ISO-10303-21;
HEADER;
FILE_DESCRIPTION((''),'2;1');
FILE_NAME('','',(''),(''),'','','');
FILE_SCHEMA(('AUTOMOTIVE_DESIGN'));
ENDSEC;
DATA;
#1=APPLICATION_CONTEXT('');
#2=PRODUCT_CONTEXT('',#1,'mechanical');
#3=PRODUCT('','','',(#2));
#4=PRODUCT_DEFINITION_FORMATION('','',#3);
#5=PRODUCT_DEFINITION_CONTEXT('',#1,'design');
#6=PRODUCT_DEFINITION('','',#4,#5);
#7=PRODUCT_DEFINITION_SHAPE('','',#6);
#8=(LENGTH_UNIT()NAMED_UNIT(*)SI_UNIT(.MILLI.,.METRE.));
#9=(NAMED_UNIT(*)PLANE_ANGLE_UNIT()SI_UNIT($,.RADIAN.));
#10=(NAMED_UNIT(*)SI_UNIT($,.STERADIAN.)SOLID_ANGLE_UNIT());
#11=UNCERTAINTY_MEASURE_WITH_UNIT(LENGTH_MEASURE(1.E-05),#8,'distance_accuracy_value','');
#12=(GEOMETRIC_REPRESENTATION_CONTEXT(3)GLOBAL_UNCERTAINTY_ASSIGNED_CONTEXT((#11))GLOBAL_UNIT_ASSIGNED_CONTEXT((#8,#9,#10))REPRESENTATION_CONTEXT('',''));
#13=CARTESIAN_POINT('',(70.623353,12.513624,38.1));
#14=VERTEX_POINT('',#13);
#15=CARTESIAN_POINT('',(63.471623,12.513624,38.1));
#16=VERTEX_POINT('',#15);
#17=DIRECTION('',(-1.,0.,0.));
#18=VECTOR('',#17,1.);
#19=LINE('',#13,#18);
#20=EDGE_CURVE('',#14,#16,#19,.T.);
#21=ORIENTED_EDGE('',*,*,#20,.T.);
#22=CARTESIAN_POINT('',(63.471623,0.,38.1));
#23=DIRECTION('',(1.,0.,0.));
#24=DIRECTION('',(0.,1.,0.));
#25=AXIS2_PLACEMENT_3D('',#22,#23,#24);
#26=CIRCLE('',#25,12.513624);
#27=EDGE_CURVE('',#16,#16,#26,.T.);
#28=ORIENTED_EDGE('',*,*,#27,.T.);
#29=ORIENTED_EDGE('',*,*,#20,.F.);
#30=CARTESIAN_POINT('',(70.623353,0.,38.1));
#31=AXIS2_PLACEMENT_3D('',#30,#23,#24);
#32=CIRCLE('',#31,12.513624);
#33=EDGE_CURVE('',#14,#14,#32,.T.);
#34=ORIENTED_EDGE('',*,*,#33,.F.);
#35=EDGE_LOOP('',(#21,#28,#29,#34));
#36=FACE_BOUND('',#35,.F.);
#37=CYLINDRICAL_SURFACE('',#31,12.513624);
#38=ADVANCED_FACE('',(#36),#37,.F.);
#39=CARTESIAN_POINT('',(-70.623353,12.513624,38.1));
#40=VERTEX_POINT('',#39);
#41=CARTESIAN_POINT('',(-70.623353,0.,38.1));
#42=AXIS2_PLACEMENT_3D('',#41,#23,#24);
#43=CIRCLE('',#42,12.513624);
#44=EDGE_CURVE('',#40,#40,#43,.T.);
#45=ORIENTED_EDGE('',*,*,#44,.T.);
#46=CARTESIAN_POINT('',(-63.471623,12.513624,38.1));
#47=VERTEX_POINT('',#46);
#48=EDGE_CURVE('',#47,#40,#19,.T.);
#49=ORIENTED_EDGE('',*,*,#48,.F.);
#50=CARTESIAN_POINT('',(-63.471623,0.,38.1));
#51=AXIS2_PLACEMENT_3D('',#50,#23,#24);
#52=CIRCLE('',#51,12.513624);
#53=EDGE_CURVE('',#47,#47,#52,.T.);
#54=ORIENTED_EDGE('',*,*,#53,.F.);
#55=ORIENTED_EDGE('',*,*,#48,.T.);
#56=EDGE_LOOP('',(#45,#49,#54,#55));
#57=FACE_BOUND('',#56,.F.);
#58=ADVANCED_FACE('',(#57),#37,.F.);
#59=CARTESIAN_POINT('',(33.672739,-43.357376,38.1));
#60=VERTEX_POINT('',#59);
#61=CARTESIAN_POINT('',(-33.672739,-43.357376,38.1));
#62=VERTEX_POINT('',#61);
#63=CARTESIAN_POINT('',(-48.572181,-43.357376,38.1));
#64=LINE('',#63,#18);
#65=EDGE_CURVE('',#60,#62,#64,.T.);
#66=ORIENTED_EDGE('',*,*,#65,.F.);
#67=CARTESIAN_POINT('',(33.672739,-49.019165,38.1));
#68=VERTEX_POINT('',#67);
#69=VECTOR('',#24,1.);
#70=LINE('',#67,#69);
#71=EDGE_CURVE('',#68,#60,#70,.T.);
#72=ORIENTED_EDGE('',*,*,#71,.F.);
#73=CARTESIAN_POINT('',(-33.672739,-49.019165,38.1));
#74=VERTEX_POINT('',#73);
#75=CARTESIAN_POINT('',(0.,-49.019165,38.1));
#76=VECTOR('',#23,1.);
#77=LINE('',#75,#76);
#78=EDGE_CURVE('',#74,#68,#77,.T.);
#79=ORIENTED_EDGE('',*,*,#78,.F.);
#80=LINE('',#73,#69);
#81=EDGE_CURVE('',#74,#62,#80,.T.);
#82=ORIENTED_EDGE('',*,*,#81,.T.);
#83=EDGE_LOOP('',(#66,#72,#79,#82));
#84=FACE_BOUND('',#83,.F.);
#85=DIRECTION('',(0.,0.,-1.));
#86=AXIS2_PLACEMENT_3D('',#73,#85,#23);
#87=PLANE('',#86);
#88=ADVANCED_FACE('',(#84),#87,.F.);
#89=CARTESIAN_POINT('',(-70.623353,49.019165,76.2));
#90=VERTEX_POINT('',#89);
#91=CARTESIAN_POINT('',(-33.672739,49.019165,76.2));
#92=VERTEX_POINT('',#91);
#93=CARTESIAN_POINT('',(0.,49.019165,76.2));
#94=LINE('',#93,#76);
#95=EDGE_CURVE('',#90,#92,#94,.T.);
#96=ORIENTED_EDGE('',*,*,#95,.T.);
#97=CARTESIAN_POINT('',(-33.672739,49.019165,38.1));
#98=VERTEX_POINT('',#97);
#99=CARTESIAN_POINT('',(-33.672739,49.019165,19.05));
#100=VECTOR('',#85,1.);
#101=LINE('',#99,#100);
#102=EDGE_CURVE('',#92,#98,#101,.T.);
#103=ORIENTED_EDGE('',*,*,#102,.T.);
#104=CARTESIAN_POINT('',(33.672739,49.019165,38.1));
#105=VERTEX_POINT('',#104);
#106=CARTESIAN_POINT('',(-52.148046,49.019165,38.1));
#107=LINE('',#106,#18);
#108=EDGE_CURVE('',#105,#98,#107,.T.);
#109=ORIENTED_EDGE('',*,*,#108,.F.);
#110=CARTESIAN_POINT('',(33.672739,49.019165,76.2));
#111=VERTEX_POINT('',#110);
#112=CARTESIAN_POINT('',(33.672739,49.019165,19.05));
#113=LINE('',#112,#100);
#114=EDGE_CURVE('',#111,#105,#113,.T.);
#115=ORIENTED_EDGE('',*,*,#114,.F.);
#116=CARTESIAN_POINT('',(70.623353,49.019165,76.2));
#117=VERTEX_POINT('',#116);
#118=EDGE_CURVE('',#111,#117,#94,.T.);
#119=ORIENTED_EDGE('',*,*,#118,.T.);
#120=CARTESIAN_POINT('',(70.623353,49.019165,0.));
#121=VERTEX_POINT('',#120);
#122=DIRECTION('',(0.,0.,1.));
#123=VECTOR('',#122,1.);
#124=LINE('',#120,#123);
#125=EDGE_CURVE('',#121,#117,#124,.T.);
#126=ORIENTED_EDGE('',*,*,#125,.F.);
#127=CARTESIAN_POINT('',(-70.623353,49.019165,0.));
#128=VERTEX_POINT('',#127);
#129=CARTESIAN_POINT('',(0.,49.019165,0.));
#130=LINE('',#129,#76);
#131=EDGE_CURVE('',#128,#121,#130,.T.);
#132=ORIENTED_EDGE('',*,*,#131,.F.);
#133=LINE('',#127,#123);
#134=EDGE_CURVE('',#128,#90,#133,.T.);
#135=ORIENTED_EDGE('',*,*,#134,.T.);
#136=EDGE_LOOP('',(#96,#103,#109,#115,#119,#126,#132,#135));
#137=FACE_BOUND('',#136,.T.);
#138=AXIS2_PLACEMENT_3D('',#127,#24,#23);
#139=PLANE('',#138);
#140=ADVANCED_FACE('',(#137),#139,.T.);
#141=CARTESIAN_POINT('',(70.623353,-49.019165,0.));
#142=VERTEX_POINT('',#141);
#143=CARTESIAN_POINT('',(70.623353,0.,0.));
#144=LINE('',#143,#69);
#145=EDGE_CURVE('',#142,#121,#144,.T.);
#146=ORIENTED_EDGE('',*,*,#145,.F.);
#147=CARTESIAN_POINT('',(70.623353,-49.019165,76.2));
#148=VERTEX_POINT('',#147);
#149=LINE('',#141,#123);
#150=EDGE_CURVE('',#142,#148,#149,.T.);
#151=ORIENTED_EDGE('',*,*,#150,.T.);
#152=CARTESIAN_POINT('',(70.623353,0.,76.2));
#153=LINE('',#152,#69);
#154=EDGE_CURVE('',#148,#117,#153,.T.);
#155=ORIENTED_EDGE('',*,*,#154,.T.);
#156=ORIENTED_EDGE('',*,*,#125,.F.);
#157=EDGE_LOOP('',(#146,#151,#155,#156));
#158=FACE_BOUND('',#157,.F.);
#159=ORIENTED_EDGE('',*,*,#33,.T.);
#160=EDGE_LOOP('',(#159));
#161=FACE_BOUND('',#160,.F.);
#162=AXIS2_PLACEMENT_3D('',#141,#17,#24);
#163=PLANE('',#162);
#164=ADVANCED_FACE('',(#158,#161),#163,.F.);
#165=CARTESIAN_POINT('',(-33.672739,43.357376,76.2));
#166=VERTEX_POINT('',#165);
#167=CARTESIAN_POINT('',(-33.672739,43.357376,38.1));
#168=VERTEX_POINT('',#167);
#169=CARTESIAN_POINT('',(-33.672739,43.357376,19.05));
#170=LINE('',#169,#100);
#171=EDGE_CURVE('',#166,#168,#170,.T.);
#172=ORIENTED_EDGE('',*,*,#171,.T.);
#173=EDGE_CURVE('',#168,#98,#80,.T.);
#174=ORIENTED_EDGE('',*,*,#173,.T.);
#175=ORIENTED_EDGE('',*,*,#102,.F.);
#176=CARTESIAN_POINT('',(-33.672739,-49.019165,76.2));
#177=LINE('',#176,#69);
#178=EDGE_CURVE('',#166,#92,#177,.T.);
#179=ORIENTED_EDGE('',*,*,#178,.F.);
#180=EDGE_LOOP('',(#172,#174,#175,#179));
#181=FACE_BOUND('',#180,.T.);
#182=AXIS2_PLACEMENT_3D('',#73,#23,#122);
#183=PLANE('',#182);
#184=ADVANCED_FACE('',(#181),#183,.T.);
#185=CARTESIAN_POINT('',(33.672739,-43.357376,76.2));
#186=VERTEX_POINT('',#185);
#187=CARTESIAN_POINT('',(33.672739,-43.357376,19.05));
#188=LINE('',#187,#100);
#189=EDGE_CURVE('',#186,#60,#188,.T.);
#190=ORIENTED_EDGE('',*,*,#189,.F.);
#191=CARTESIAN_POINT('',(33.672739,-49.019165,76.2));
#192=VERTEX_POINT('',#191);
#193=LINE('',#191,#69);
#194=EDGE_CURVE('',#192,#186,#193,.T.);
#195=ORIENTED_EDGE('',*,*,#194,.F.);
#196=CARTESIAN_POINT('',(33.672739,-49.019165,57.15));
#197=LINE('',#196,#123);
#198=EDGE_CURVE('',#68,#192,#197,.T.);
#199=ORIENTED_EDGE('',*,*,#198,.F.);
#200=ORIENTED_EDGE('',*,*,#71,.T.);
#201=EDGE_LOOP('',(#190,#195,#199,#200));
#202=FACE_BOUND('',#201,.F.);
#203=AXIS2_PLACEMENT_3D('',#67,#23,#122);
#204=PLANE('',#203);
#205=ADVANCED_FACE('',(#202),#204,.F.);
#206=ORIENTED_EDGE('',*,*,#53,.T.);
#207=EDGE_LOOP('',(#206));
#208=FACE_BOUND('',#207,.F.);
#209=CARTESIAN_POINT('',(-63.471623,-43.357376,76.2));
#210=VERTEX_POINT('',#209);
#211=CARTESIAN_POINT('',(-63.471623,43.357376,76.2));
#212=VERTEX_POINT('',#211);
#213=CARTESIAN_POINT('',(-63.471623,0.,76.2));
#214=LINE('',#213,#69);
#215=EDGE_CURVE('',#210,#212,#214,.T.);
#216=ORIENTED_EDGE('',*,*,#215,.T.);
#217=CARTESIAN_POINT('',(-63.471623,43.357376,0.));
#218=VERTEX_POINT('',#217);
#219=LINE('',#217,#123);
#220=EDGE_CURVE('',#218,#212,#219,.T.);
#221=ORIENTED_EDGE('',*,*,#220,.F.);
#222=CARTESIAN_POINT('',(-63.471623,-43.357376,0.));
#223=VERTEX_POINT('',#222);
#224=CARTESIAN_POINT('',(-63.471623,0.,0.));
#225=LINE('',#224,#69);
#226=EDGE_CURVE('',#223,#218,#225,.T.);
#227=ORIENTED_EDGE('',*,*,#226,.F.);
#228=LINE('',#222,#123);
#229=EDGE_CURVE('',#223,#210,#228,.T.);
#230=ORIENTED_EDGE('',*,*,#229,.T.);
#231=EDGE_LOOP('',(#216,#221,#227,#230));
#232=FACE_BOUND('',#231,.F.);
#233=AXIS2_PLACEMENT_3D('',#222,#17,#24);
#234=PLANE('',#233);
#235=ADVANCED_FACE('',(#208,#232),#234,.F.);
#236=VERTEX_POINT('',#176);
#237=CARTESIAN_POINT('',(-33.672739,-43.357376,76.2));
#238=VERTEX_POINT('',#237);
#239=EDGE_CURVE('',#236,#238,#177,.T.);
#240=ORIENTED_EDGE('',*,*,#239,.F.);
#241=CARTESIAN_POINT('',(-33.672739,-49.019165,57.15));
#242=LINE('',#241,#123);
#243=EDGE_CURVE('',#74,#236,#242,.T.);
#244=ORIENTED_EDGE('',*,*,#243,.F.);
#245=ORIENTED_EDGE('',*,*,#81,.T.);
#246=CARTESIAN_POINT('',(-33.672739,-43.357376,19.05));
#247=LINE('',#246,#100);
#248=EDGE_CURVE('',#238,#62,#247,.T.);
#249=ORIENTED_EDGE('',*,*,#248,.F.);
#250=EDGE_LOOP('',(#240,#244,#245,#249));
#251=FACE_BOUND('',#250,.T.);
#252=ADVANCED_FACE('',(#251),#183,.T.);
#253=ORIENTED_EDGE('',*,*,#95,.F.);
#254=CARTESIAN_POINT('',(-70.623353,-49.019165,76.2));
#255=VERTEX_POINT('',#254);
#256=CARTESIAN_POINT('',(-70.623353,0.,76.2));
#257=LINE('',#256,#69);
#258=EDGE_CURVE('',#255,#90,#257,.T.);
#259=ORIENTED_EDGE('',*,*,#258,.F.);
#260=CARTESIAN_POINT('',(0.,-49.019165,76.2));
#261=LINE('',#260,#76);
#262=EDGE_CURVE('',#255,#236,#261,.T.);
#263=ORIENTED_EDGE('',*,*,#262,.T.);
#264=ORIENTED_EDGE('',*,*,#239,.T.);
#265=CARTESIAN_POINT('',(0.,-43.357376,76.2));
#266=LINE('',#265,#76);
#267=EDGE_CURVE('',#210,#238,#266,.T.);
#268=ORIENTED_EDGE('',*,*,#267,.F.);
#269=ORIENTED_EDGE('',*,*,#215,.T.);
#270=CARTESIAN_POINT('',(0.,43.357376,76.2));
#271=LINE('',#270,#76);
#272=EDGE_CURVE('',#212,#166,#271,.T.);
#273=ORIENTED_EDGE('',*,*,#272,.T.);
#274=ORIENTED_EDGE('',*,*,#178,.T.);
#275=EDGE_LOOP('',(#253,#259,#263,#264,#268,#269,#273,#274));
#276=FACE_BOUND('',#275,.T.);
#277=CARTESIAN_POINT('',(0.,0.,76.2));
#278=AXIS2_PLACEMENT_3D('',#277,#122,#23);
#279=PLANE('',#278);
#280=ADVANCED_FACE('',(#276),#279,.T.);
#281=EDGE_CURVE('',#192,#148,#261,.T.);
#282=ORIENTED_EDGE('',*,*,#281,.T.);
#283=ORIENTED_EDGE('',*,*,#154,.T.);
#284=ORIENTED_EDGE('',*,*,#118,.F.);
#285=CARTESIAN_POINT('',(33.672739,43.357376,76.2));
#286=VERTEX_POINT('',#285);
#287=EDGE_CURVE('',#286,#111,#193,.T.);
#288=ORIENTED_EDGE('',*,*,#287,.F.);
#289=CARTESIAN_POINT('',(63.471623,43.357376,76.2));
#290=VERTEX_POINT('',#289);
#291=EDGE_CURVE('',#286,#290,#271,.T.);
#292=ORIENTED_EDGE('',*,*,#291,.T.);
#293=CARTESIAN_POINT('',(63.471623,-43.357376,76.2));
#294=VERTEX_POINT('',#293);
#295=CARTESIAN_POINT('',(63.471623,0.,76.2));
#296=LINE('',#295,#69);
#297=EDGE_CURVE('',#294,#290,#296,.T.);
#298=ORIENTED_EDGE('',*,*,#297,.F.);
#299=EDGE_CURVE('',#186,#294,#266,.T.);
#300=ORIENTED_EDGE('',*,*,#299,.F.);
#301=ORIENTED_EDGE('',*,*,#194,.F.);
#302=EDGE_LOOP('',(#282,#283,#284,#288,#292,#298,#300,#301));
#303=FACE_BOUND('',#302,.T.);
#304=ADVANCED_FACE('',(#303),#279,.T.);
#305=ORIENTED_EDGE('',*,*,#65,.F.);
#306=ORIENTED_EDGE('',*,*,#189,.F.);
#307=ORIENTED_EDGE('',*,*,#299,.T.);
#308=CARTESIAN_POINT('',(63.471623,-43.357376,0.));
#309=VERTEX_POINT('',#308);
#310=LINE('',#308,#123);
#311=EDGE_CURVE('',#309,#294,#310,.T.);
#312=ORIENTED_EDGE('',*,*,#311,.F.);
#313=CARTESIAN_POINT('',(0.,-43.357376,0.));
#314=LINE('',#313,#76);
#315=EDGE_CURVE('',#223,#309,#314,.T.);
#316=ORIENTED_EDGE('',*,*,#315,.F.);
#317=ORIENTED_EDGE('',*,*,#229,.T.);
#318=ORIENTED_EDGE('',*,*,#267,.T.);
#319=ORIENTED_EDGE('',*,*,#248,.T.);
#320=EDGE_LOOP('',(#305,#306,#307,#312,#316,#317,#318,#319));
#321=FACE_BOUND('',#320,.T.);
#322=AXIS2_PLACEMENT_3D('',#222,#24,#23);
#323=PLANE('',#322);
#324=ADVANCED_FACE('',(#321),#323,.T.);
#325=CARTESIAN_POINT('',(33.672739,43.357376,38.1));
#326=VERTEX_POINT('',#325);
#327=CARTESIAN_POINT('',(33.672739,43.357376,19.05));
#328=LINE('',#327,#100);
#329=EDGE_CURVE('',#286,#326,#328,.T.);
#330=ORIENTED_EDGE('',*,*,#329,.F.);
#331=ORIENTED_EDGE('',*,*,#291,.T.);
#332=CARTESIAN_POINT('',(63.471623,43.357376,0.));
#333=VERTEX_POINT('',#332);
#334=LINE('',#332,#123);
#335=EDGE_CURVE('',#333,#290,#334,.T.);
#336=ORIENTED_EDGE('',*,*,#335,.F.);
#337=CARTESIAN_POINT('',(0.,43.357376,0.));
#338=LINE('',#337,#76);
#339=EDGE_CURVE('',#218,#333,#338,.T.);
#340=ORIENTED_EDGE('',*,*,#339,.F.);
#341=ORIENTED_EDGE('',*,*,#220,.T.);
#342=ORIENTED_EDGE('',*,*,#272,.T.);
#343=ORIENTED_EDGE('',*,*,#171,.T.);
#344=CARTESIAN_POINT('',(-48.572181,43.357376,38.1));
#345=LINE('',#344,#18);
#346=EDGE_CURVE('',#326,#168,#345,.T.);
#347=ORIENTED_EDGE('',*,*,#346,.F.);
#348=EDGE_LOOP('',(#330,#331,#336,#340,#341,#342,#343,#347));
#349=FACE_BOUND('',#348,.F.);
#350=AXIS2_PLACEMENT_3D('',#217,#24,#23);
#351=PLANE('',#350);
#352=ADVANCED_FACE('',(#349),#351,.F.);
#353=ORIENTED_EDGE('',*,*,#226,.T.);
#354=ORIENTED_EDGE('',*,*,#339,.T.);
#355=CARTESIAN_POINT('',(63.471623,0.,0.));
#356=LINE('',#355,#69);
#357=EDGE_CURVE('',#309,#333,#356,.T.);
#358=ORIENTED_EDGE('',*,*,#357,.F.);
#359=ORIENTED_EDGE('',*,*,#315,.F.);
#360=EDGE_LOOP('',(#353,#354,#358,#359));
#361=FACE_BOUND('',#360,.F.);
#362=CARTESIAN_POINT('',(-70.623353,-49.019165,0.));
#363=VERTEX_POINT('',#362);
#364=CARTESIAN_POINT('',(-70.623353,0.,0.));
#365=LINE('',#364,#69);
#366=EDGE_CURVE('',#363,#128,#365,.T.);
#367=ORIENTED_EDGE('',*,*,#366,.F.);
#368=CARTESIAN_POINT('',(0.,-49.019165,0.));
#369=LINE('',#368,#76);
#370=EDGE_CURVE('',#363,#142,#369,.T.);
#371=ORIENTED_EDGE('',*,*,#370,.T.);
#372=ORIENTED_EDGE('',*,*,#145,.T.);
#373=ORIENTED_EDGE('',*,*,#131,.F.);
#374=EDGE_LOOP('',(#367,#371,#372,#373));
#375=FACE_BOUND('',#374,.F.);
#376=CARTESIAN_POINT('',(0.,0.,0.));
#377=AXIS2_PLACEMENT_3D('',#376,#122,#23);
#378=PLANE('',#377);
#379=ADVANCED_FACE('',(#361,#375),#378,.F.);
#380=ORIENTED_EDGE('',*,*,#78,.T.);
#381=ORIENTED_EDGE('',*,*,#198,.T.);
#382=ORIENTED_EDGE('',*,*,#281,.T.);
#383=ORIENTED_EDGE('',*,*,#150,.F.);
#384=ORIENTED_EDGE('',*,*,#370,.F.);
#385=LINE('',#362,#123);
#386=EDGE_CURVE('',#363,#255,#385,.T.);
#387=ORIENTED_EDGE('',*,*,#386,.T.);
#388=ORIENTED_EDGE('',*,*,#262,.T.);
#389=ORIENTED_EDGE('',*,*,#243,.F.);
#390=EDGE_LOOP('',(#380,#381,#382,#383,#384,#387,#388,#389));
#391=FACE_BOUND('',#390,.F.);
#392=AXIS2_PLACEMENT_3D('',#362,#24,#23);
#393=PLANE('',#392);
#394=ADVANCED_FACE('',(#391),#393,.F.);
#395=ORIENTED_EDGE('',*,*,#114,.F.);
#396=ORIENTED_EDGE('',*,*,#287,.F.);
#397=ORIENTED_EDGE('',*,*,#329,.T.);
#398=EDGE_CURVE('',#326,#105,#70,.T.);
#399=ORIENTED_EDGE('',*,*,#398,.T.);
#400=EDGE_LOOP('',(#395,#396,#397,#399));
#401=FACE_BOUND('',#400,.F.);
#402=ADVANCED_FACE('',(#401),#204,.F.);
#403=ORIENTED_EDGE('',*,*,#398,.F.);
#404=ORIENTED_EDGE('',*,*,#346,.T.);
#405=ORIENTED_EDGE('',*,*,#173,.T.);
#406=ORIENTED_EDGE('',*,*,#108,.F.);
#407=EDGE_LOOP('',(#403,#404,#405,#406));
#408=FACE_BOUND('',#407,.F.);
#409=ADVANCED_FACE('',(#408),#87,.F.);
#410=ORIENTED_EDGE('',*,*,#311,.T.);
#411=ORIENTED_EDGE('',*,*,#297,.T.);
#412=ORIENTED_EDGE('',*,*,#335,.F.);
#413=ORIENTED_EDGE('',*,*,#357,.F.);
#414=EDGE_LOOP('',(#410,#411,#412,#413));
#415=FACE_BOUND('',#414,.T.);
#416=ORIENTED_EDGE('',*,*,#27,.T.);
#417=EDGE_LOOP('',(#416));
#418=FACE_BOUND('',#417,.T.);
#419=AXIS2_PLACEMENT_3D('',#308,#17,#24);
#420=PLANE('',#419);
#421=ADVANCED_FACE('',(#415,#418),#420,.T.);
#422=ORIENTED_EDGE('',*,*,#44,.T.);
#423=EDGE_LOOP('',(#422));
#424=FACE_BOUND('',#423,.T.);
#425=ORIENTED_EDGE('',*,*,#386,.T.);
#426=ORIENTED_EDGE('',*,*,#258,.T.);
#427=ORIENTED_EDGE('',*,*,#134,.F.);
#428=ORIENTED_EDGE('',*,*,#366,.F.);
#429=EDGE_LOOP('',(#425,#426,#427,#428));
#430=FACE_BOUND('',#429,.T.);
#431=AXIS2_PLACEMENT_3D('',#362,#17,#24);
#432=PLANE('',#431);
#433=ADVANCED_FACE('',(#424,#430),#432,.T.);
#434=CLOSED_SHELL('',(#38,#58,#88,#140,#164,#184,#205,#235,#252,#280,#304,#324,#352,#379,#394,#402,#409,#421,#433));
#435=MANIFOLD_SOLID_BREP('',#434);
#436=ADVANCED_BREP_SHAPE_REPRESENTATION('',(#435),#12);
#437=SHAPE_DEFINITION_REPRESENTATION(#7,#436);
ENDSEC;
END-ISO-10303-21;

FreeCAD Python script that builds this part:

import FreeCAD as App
import Part
import Sketcher

V = App.Vector
Q = App.Units.Quantity

doc = App.newDocument("Part")
body = doc.addObject("PartDesign::Body", "Body")

# Sketch on XY plane
sketch1 = doc.addObject("Sketcher::SketchObject", "Sketch")
body.addObject(sketch1)
sketch1.AttachmentSupport = (doc.XY_Plane, [""])
sketch1.MapMode = "FlatFace"
sketch1.addGeometry(Part.LineSegment(V(-70.623353, 49.019165, 0), V(-70.623353, -49.019165, 0)), False)
sketch1.addGeometry(Part.LineSegment(V(-70.623353, -49.019165, 0), V(70.623353, -49.019165, 0)), False)
sketch1.addGeometry(Part.LineSegment(V(70.623353, -49.019165, 0), V(70.623353, 49.019165, 0)), False)
sketch1.addGeometry(Part.LineSegment(V(70.623353, 49.019165, 0), V(-70.623353, 49.019165, 0)), False)
sketch1.addGeometry(Part.LineSegment(V(63.471623, -43.357376, 0), V(-63.471623, -43.357376, 0)), False)
sketch1.addGeometry(Part.LineSegment(V(-63.471623, -43.357376, 0), V(-63.471623, 43.357376, 0)), False)
sketch1.addGeometry(Part.LineSegment(V(-63.471623, 43.357376, 0), V(63.471623, 43.357376, 0)), False)
sketch1.addGeometry(Part.LineSegment(V(63.471623, 43.357376, 0), V(63.471623, -43.357376, 0)), False)
sketch1.addConstraint(Sketcher.Constraint("Coincident", 0, 2, 1, 1))
sketch1.addConstraint(Sketcher.Constraint("Coincident", 1, 2, 2, 1))
sketch1.addConstraint(Sketcher.Constraint("Coincident", 2, 2, 3, 1))
sketch1.addConstraint(Sketcher.Constraint("Coincident", 3, 2, 0, 1))
sketch1.addConstraint(Sketcher.Constraint("Coincident", 4, 2, 5, 1))
sketch1.addConstraint(Sketcher.Constraint("Coincident", 5, 2, 6, 1))
sketch1.addConstraint(Sketcher.Constraint("Coincident", 6, 2, 7, 1))
sketch1.addConstraint(Sketcher.Constraint("Coincident", 7, 2, 4, 1))
sketch1.addConstraint(Sketcher.Constraint("Vertical", 0))
sketch1.addConstraint(Sketcher.Constraint("Horizontal", 1))
sketch1.addConstraint(Sketcher.Constraint("Vertical", 2))
sketch1.addConstraint(Sketcher.Constraint("Horizontal", 3))
sketch1.addConstraint(Sketcher.Constraint("Horizontal", 4))
sketch1.addConstraint(Sketcher.Constraint("Vertical", 5))
sketch1.addConstraint(Sketcher.Constraint("Horizontal", 6))
sketch1.addConstraint(Sketcher.Constraint("Vertical", 7))
sketch1.addConstraint(Sketcher.Constraint("Symmetric", 0, 2, 2, 2, -1, 1))
sketch1.addConstraint(Sketcher.Constraint("Symmetric", 4, 2, 6, 2, -1, 1))
sketch1.addConstraint(Sketcher.Constraint("DistanceY", 0, 2, 0, 1, 98.03833))
sketch1.addConstraint(Sketcher.Constraint("DistanceX", 1, 1, 1, 2, 141.246706))
sketch1.addConstraint(Sketcher.Constraint("DistanceX", 4, 2, 4, 1, 126.943246))
sketch1.addConstraint(Sketcher.Constraint("DistanceY", 5, 1, 5, 2, 86.714752))
pad1 = doc.addObject("PartDesign::Pad", "Pad")
body.addObject(pad1)
pad1.Profile = sketch1
pad1.Length = Q("3 in")

# Sketch on YZ plane
sketch2 = doc.addObject("Sketcher::SketchObject", "Sketch001")
body.addObject(sketch2)
sketch2.AttachmentSupport = (doc.YZ_Plane, [""])
sketch2.MapMode = "FlatFace"
sketch2.AttachmentOffset = App.Placement(V(0, 0, 70.623353), App.Rotation())
sketch2.addGeometry(Part.Circle(V(0, 38.1, 0), V(0, 0, 1), 12.513624), False)
sketch2.addConstraint(Sketcher.Constraint("PointOnObject", 0, 3, -2))
sketch2.addConstraint(Sketcher.Constraint("DistanceY", -1, 1, 0, 3, Q("1.5 in")))
sketch2.addConstraint(Sketcher.Constraint("Diameter", 0, 25.027248))
pocket1 = doc.addObject("PartDesign::Pocket", "Pocket")
body.addObject(pocket1)
pocket1.Profile = sketch2
pocket1.Length = Q("10.07 in")

# Sketch on XZ plane
sketch3 = doc.addObject("Sketcher::SketchObject", "Sketch002")
body.addObject(sketch3)
sketch3.AttachmentSupport = (doc.XZ_Plane, [""])
sketch3.MapMode = "FlatFace"
sketch3.AttachmentOffset = App.Placement(V(0, 0, 49.019165), App.Rotation())
sketch3.addGeometry(Part.LineSegment(V(-33.672739, 76.2, 0), V(-33.672739, 38.1, 0)), False)
sketch3.addGeometry(Part.LineSegment(V(-33.672739, 38.1, 0), V(33.672739, 38.1, 0)), False)
sketch3.addGeometry(Part.LineSegment(V(33.672739, 38.1, 0), V(33.672739, 76.2, 0)), False)
sketch3.addGeometry(Part.LineSegment(V(33.672739, 76.2, 0), V(-33.672739, 76.2, 0)), False)
sketch3.addConstraint(Sketcher.Constraint("Coincident", 0, 2, 1, 1))
sketch3.addConstraint(Sketcher.Constraint("Coincident", 1, 2, 2, 1))
sketch3.addConstraint(Sketcher.Constraint("Coincident", 2, 2, 3, 1))
sketch3.addConstraint(Sketcher.Constraint("Coincident", 3, 2, 0, 1))
sketch3.addConstraint(Sketcher.Constraint("Vertical", 0))
sketch3.addConstraint(Sketcher.Constraint("Horizontal", 1))
sketch3.addConstraint(Sketcher.Constraint("Vertical", 2))
sketch3.addConstraint(Sketcher.Constraint("Horizontal", 3))
sketch3.addConstraint(Sketcher.Constraint("DistanceY", 0, 2, 0, 1, Q("1.5 in")))
sketch3.addConstraint(Sketcher.Constraint("DistanceY", -1, 1, 2, 2, Q("3 in")))
sketch3.addConstraint(Sketcher.Constraint("DistanceX", 1, 1, 1, 2, 67.345478))
sketch3.addConstraint(Sketcher.Constraint("DistanceX", 0, 2, -1, 1, 33.672739))
pocket2 = doc.addObject("PartDesign::Pocket", "Pocket001")
body.addObject(pocket2)
pocket2.Profile = sketch3
pocket2.Length = Q("6.79 in")

doc.recompute()
